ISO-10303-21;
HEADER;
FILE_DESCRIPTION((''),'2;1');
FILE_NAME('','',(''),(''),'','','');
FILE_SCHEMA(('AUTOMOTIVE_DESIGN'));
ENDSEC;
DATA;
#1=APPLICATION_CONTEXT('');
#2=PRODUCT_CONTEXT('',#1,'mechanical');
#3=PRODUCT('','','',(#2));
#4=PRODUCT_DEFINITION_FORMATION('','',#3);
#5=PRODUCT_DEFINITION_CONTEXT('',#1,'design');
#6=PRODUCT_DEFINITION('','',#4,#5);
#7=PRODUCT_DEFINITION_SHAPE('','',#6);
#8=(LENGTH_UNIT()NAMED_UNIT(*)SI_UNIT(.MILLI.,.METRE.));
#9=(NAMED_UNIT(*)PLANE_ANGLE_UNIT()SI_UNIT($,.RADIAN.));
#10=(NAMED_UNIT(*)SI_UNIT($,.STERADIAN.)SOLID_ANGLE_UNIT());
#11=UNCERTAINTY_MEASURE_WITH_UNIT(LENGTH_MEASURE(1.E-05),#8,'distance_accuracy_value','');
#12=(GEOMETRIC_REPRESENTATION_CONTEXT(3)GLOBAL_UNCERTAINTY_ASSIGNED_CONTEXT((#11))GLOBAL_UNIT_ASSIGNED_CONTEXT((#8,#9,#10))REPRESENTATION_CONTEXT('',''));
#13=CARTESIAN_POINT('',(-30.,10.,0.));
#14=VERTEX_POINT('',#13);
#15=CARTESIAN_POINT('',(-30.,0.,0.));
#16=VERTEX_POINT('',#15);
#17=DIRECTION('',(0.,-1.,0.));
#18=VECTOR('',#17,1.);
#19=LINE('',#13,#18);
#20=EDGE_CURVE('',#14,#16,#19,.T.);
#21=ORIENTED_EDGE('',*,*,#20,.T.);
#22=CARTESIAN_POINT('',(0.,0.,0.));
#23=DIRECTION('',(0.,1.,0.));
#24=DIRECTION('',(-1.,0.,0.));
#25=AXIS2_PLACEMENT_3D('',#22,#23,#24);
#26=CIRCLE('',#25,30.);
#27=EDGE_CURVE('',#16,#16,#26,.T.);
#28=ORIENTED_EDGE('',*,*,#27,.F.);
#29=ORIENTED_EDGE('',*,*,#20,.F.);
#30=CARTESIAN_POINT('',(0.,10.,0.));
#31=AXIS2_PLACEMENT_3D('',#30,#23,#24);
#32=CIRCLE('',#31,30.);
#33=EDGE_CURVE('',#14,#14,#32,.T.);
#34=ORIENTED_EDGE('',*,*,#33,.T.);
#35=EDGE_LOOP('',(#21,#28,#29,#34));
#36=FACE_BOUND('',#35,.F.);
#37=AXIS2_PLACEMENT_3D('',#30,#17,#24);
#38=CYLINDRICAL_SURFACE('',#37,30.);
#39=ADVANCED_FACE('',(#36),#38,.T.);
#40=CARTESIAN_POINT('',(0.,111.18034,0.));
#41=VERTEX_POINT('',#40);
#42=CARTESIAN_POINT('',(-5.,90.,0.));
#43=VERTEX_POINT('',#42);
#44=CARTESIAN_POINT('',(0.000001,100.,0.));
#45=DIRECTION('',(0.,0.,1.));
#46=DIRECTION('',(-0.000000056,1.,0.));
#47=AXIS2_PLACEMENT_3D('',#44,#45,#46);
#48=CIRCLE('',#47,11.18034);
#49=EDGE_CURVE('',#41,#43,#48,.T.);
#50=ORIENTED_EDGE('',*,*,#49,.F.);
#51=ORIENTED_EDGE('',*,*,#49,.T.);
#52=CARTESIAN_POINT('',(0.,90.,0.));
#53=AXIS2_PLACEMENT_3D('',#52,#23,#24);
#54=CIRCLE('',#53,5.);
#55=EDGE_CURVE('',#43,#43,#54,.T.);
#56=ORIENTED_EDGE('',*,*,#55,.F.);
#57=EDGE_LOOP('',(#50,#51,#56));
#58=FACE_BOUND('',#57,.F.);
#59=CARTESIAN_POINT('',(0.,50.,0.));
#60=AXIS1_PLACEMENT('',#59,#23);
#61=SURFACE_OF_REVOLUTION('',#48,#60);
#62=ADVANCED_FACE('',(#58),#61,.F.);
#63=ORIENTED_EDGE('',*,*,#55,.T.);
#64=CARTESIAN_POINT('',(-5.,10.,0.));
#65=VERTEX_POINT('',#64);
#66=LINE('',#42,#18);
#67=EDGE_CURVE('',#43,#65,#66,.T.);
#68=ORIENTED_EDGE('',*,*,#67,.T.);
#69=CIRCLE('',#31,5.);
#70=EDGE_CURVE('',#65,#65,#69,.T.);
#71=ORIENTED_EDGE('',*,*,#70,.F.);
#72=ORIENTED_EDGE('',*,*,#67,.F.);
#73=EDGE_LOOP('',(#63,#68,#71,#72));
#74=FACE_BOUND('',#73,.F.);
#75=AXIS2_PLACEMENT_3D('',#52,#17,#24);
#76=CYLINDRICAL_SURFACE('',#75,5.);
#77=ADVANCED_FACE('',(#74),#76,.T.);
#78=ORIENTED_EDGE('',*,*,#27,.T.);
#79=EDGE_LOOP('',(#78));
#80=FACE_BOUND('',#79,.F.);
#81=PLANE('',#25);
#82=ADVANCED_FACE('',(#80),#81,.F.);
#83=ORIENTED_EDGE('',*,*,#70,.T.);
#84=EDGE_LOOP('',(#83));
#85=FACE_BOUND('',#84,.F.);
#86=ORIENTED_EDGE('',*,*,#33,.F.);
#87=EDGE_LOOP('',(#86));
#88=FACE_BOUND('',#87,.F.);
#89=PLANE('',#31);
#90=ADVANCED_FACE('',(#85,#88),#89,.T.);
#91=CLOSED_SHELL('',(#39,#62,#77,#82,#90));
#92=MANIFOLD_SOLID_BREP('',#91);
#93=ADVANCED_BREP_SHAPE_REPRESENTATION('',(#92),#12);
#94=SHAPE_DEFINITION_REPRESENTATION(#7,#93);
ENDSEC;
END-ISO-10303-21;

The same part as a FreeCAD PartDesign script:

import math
import FreeCAD as App
import Part
import Sketcher
Q = App.Units.Quantity

doc = App.newDocument("Part")
body = doc.addObject("PartDesign::Body", "Body")

# Sketch on XY plane
sketch1 = body.newObject("Sketcher::SketchObject", "Sketch")
sketch1.AttachmentSupport = (doc.getObject("XY_Plane"), [""])
sketch1.MapMode = "FlatFace"
sketch1.addGeometry([
    Part.LineSegment(App.Vector(-30, 0, 0), App.Vector(0, 0, 0)),  # 0
    Part.LineSegment(App.Vector(0, 0, 0), App.Vector(0, 111, 0)),  # 1
    Part.ArcOfCircle(Part.Circle(App.Vector(0, 100, 0), App.Vector(0, 0, 1), 11), math.radians(90), math.radians(243)),  # 2
    Part.LineSegment(App.Vector(-5, 90, 0), App.Vector(-5, 10, 0)),  # 3
    Part.LineSegment(App.Vector(-5, 10, 0), App.Vector(-30, 10, 0)),  # 4
    Part.LineSegment(App.Vector(-30, 10, 0), App.Vector(-30, 0, 0)),  # 5
], False)
sketch1.addConstraint([
    Sketcher.Constraint("Coincident", 0, 2, 1, 1),
    Sketcher.Constraint("Coincident", 1, 2, 2, 1),
    Sketcher.Constraint("Coincident", 2, 2, 3, 1),
    Sketcher.Constraint("Coincident", 3, 2, 4, 1),
    Sketcher.Constraint("Coincident", 4, 2, 5, 1),
    Sketcher.Constraint("Coincident", 5, 2, 0, 1),
    Sketcher.Constraint("Horizontal", 0),
    Sketcher.Constraint("Vertical", 1),
    Sketcher.Constraint("Vertical", 3),
    Sketcher.Constraint("Horizontal", 4),
    Sketcher.Constraint("Vertical", 5),
    Sketcher.Constraint("Coincident", 0, 2, -1, 1),
    Sketcher.Constraint("PointOnObject", 2, 3, -2),
    Sketcher.Constraint("DistanceX", 0, 1, 0, 2, Q("30 mm")),
    Sketcher.Constraint("DistanceX", 4, 2, 4, 1, Q("25 mm")),
    Sketcher.Constraint("DistanceY", 3, 2, 3, 1, Q("80 mm")),
    Sketcher.Constraint("DistanceY", 5, 2, 5, 1, Q("10 mm")),
    Sketcher.Constraint("DistanceY", -1, 1, 2, 3, Q("100 mm")),
])
revolution = body.newObject("PartDesign::Revolution", "Revolution")
revolution.Profile = sketch1
revolution.ReferenceAxis = (sketch1, ["V_Axis"])
revolution.Angle = 360

doc.recompute()
